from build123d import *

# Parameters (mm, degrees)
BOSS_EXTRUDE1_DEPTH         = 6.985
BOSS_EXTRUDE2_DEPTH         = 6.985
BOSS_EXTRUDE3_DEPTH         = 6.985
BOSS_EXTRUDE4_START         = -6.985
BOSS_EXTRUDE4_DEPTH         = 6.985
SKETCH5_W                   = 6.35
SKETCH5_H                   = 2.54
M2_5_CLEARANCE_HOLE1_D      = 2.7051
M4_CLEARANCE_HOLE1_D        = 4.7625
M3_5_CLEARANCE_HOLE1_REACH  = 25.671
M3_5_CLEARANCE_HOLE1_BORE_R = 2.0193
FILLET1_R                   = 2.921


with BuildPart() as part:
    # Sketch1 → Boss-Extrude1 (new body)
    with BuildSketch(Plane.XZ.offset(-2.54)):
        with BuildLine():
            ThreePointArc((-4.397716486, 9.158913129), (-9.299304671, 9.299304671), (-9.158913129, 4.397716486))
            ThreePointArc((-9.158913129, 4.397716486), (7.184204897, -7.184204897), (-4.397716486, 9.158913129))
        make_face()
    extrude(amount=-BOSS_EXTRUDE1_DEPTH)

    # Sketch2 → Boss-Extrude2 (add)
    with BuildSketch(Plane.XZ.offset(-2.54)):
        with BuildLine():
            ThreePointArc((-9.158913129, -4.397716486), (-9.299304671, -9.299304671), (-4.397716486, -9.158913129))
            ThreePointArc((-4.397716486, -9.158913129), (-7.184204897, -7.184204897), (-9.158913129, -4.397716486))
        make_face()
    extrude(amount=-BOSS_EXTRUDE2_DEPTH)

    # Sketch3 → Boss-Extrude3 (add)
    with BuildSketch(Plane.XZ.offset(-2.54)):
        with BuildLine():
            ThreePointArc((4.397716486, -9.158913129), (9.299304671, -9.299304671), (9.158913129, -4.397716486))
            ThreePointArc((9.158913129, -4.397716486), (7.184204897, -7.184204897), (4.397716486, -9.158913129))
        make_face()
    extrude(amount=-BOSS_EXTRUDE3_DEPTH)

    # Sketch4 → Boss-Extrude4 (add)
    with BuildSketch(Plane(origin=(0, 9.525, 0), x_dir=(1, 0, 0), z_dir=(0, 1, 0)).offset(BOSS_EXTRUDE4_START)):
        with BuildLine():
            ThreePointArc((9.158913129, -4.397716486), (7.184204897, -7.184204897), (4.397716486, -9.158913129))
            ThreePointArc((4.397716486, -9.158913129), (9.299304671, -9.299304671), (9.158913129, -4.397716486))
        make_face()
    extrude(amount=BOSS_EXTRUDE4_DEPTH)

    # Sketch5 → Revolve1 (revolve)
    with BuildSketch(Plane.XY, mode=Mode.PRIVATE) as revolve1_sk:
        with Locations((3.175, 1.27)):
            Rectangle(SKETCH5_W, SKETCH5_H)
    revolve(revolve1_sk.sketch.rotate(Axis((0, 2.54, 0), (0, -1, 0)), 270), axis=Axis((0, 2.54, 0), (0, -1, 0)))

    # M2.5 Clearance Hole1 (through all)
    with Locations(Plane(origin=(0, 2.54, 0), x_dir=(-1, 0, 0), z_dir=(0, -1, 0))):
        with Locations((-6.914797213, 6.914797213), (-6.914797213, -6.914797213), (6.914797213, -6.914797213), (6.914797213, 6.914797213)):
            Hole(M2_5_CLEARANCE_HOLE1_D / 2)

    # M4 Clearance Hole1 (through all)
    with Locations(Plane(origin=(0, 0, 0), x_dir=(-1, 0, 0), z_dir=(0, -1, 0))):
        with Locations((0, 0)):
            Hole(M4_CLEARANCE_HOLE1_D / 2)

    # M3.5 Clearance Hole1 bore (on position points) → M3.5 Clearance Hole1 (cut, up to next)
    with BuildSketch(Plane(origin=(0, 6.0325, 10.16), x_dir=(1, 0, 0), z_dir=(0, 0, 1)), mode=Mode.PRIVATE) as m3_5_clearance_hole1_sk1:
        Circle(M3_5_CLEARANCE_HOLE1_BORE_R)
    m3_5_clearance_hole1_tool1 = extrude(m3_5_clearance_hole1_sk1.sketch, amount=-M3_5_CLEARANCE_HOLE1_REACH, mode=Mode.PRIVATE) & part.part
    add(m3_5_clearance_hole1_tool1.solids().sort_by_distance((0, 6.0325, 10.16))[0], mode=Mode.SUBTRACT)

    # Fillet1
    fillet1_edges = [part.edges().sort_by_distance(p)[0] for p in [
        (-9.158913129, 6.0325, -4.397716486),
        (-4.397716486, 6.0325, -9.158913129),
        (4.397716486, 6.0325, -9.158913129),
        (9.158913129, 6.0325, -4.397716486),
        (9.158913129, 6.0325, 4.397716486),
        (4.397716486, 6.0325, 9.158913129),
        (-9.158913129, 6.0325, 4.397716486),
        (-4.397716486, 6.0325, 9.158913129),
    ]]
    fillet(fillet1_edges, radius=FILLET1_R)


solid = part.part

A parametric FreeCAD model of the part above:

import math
import FreeCAD as App
import Part
import Sketcher

V = App.Vector
Q = App.Units.Quantity


def edges_at(feature, points):
    """Names of the edges that pass closest to the given points."""
    edges = feature.Shape.Edges
    near = lambda p: min(range(len(edges)), key=lambda i: edges[i].distToShape(Part.Vertex(*p))[0])
    return sorted({f"Edge{near(p) + 1}" for p in points})

doc = App.newDocument("Part")
body = doc.addObject("PartDesign::Body", "Body")

# Sketch on XZ plane
sketch1 = body.newObject("Sketcher::SketchObject", "Sketch")
sketch1.AttachmentSupport = (doc.getObject("XZ_Plane"), [""])
sketch1.MapMode = "FlatFace"
sketch1.AttachmentOffset = App.Placement(V(0, 0, -0.1 * 25.4), App.Rotation())
sketch1.addGeometry([
    Part.ArcOfCircle(Part.Circle(V(-6.914797, 6.914797, 0), V(0, 0, 1), 3.372203), math.radians(41.71876), math.radians(228.28124)),
    Part.ArcOfCircle(Part.Circle(V(0, 0, 0), V(0, 0, 1), 10.16), math.radians(154.351682), math.radians(475.648318)),
], False)
sketch1.addConstraint([
    Sketcher.Constraint("Coincident", 0, 1, 1, 2),
    Sketcher.Constraint("Coincident", 1, 1, 0, 2),
    Sketcher.Constraint("Coincident", 1, 3, -1, 1),
    Sketcher.Constraint("Radius", 1, Q("0.4 in")),
    Sketcher.Constraint("Radius", 0, Q("3.372203 mm")),
    Sketcher.Constraint("DistanceX", 0, 3, 0, 1, Q("2.517081 mm")),
    Sketcher.Constraint("DistanceY", 1, 1, 0, 3, Q("2.517081 mm")),
])
pad1 = body.newObject("PartDesign::Pad", "Pad")
pad1.Profile = sketch1
pad1.Length = Q("0.275 in")
pad1.Reversed = True

# Sketch on XZ plane
sketch2 = body.newObject("Sketcher::SketchObject", "Sketch001")
sketch2.AttachmentSupport = (doc.getObject("XZ_Plane"), [""])
sketch2.MapMode = "FlatFace"
sketch2.AttachmentOffset = App.Placement(V(0, 0, -0.1 * 25.4), App.Rotation())
sketch2.addGeometry([
    Part.ArcOfCircle(Part.Circle(V(-6.914797, -6.914797, 0), V(0, 0, 1), 3.372203), math.radians(131.71876), math.radians(318.28124)),
    Part.ArcOfCircle(Part.Circle(V(0, 0, 0), V(0, 0, 1), 10.16), math.radians(-154.351682), math.radians(-115.648318)),
], False)
sketch2.addConstraint([
    Sketcher.Constraint("Coincident", 0, 1, 1, 1),
    Sketcher.Constraint("Coincident", 1, 2, 0, 2),
    Sketcher.Constraint("Coincident", 1, 3, -1, 1),
    Sketcher.Constraint("Radius", 1, Q("0.4 in")),
    Sketcher.Constraint("Radius", 0, Q("3.372203 mm")),
    Sketcher.Constraint("DistanceY", 0, 3, 0, 1, Q("2.517081 mm")),
    Sketcher.Constraint("DistanceX", 0, 3, 1, 2, Q("2.517081 mm")),
])
pad2 = body.newObject("PartDesign::Pad", "Pad001")
pad2.Profile = sketch2
pad2.Length = Q("0.275 in")
pad2.Reversed = True

# Sketch on XZ plane
sketch3 = body.newObject("Sketcher::SketchObject", "Sketch002")
sketch3.AttachmentSupport = (doc.getObject("XZ_Plane"), [""])
sketch3.MapMode = "FlatFace"
sketch3.AttachmentOffset = App.Placement(V(0, 0, -0.1 * 25.4), App.Rotation())
sketch3.addGeometry([
    Part.ArcOfCircle(Part.Circle(V(6.914797, -6.914797, 0), V(0, 0, 1), 3.372203), math.radians(-138.28124), math.radians(48.28124)),
    Part.ArcOfCircle(Part.Circle(V(0, 0, 0), V(0, 0, 1), 10.16), math.radians(-64.351682), math.radians(-25.648318)),
], False)
sketch3.addConstraint([
    Sketcher.Constraint("Coincident", 0, 1, 1, 1),
    Sketcher.Constraint("Coincident", 1, 2, 0, 2),
    Sketcher.Constraint("Coincident", 1, 3, -1, 1),
    Sketcher.Constraint("Radius", 1, Q("0.4 in")),
    Sketcher.Constraint("Radius", 0, Q("3.372203 mm")),
    Sketcher.Constraint("DistanceX", 0, 1, 0, 3, Q("2.517081 mm")),
    Sketcher.Constraint("DistanceY", 0, 3, 1, 2, Q("2.517081 mm")),
])
pad3 = body.newObject("PartDesign::Pad", "Pad002")
pad3.Profile = sketch3
pad3.Length = Q("0.275 in")
pad3.Reversed = True

# Sketch on XZ plane
sketch4 = body.newObject("Sketcher::SketchObject", "Sketch003")
sketch4.AttachmentSupport = (doc.getObject("XZ_Plane"), [""])
sketch4.MapMode = "FlatFace"
sketch4.AttachmentOffset = App.Placement(V(0, 0, -0.1 * 25.4), App.Rotation())
sketch4.addGeometry([
    Part.ArcOfCircle(Part.Circle(V(0, 0, 0), V(0, 0, 1), 10.16), math.radians(25.648318), math.radians(64.351682)),
    Part.ArcOfCircle(Part.Circle(V(6.914797, 6.914797, 0), V(0, 0, 1), 3.372203), math.radians(-48.28124), math.radians(138.28124)),
], False)
sketch4.addConstraint([
    Sketcher.Constraint("Coincident", 0, 1, 1, 1),
    Sketcher.Constraint("Coincident", 1, 2, 0, 2),
    Sketcher.Constraint("Coincident", 0, 3, -1, 1),
    Sketcher.Constraint("Radius", 0, Q("0.4 in")),
    Sketcher.Constraint("Radius", 1, Q("3.372203 mm")),
    Sketcher.Constraint("DistanceY", 0, 1, 1, 3, Q("2.517081 mm")),
    Sketcher.Constraint("DistanceX", 1, 2, 1, 3, Q("2.517081 mm")),
])
pad4 = body.newObject("PartDesign::Pad", "Pad003")
pad4.Profile = sketch4
pad4.Length = Q("0.275 in")
pad4.Reversed = True

# Sketch on XY plane
sketch5 = body.newObject("Sketcher::SketchObject", "Sketch004")
sketch5.AttachmentSupport = (doc.getObject("XY_Plane"), [""])
sketch5.MapMode = "FlatFace"
sketch5.addGeometry([
    Part.LineSegment(V(0, 2.54, 0), V(0, 0, 0)),
    Part.LineSegment(V(0, 0, 0), V(6.35, 0, 0)),
    Part.LineSegment(V(6.35, 0, 0), V(6.35, 2.54, 0)),
    Part.LineSegment(V(6.35, 2.54, 0), V(0, 2.54, 0)),
], False)
sketch5.addConstraint([
    Sketcher.Constraint("Coincident", 0, 2, 1, 1),
    Sketcher.Constraint("Coincident", 1, 2, 2, 1),
    Sketcher.Constraint("Coincident", 2, 2, 3, 1),
    Sketcher.Constraint("Coincident", 3, 2, 0, 1),
    Sketcher.Constraint("Vertical", 0),
    Sketcher.Constraint("Horizontal", 1),
    Sketcher.Constraint("Vertical", 2),
    Sketcher.Constraint("Horizontal", 3),
    Sketcher.Constraint("Coincident", 0, 2, -1, 1),
    Sketcher.Constraint("DistanceY", 0, 2, 0, 1, Q("0.1 in")),
    Sketcher.Constraint("DistanceX", 1, 1, 1, 2, Q("0.25 in")),
])
revolution = body.newObject("PartDesign::Revolution", "Revolution")
revolution.Profile = sketch5
revolution.ReferenceAxis = (sketch5, ["V_Axis"])
revolution.Angle = 360

# Sketch on XZ plane
sketch6 = body.newObject("Sketcher::SketchObject", "Sketch005")
sketch6.AttachmentSupport = (doc.getObject("XZ_Plane"), [""])
sketch6.MapMode = "FlatFace"
sketch6.AttachmentOffset = App.Placement(V(0, 0, -0.1 * 25.4), App.Rotation())
sketch6.addGeometry([
    Part.Circle(V(6.914797, -6.914797, 0), V(0, 0, 1), 1.35255),
    Part.Circle(V(6.914797, 6.914797, 0), V(0, 0, 1), 1.35255),
    Part.Circle(V(-6.914797, 6.914797, 0), V(0, 0, 1), 1.35255),
    Part.Circle(V(-6.914797, -6.914797, 0), V(0, 0, 1), 1.35255),
], False)
sketch6.addConstraint([
    Sketcher.Constraint("Equal", 0, 1),
    Sketcher.Constraint("Equal", 1, 2),
    Sketcher.Constraint("Equal", 2, 3),
    Sketcher.Constraint("Symmetric", 0, 3, 2, 3, -1, 1),
    Sketcher.Constraint("Symmetric", 1, 3, 3, 3, -1, 1),
    Sketcher.Constraint("Symmetric", 1, 3, 2, 3, -2),
    Sketcher.Constraint("Diameter", 0, Q("0.1065 in")),
    Sketcher.Constraint("DistanceX", -1, 1, 0, 3, Q("6.914797 mm")),
    Sketcher.Constraint("DistanceY", 0, 3, -1, 1, Q("6.914797 mm")),
])
doc.recompute()
hole = body.newObject("PartDesign::Hole", "Hole")
hole.Profile = sketch6
hole.ThreadType = "None"
hole.Diameter = Q("0.1065 in")
hole.DepthType = "ThroughAll"

# Sketch on XZ plane
sketch7 = body.newObject("Sketcher::SketchObject", "Sketch006")
sketch7.AttachmentSupport = (doc.getObject("XZ_Plane"), [""])
sketch7.MapMode = "FlatFace"
sketch7.addGeometry(Part.Circle(V(0, 0, 0), V(0, 0, 1), 2.38125), False)
sketch7.addConstraint([
    Sketcher.Constraint("Coincident", 0, 3, -1, 1),
    Sketcher.Constraint("Diameter", 0, Q("0.1875 in")),
])
doc.recompute()
hole2 = body.newObject("PartDesign::Hole", "Hole001")
hole2.Profile = sketch7
hole2.ThreadType = "None"
hole2.Diameter = Q("0.1875 in")
hole2.DepthType = "ThroughAll"

# Sketch on XY plane
sketch8 = body.newObject("Sketcher::SketchObject", "Sketch007")
sketch8.AttachmentSupport = (doc.getObject("XY_Plane"), [""])
sketch8.MapMode = "FlatFace"
sketch8.AttachmentOffset = App.Placement(V(0, 0, 0.4 * 25.4), App.Rotation())
sketch8.addGeometry(Part.Circle(V(0, 6.0325, 0), V(0, 0, 1), 2.0193), False)
sketch8.addConstraint([
    Sketcher.Constraint("PointOnObject", 0, 3, -2),
    Sketcher.Constraint("Diameter", 0, Q("0.159 in")),
    Sketcher.Constraint("DistanceY", -1, 1, 0, 3, Q("0.2375 in")),
])
pocket1 = body.newObject("PartDesign::Pocket", "Pocket")
pocket1.Profile = sketch8
pocket1.Type = "UpToFirst"
doc.recompute()

fillet = body.newObject("PartDesign::Fillet", "Fillet")
fillet.Base = (pocket1, edges_at(pocket1, [
    (-9.159, 6.032, -4.398),
    (-4.398, 6.032, -9.159),
    (4.398, 6.032, -9.159),
    (9.159, 6.032, -4.398),
    (9.159, 6.032, 4.398),
    (4.398, 6.032, 9.159),
    (-9.159, 6.032, 4.398),
    (-4.398, 6.032, 9.159),
]))
fillet.Radius = Q("0.115 in")

doc.recompute()
